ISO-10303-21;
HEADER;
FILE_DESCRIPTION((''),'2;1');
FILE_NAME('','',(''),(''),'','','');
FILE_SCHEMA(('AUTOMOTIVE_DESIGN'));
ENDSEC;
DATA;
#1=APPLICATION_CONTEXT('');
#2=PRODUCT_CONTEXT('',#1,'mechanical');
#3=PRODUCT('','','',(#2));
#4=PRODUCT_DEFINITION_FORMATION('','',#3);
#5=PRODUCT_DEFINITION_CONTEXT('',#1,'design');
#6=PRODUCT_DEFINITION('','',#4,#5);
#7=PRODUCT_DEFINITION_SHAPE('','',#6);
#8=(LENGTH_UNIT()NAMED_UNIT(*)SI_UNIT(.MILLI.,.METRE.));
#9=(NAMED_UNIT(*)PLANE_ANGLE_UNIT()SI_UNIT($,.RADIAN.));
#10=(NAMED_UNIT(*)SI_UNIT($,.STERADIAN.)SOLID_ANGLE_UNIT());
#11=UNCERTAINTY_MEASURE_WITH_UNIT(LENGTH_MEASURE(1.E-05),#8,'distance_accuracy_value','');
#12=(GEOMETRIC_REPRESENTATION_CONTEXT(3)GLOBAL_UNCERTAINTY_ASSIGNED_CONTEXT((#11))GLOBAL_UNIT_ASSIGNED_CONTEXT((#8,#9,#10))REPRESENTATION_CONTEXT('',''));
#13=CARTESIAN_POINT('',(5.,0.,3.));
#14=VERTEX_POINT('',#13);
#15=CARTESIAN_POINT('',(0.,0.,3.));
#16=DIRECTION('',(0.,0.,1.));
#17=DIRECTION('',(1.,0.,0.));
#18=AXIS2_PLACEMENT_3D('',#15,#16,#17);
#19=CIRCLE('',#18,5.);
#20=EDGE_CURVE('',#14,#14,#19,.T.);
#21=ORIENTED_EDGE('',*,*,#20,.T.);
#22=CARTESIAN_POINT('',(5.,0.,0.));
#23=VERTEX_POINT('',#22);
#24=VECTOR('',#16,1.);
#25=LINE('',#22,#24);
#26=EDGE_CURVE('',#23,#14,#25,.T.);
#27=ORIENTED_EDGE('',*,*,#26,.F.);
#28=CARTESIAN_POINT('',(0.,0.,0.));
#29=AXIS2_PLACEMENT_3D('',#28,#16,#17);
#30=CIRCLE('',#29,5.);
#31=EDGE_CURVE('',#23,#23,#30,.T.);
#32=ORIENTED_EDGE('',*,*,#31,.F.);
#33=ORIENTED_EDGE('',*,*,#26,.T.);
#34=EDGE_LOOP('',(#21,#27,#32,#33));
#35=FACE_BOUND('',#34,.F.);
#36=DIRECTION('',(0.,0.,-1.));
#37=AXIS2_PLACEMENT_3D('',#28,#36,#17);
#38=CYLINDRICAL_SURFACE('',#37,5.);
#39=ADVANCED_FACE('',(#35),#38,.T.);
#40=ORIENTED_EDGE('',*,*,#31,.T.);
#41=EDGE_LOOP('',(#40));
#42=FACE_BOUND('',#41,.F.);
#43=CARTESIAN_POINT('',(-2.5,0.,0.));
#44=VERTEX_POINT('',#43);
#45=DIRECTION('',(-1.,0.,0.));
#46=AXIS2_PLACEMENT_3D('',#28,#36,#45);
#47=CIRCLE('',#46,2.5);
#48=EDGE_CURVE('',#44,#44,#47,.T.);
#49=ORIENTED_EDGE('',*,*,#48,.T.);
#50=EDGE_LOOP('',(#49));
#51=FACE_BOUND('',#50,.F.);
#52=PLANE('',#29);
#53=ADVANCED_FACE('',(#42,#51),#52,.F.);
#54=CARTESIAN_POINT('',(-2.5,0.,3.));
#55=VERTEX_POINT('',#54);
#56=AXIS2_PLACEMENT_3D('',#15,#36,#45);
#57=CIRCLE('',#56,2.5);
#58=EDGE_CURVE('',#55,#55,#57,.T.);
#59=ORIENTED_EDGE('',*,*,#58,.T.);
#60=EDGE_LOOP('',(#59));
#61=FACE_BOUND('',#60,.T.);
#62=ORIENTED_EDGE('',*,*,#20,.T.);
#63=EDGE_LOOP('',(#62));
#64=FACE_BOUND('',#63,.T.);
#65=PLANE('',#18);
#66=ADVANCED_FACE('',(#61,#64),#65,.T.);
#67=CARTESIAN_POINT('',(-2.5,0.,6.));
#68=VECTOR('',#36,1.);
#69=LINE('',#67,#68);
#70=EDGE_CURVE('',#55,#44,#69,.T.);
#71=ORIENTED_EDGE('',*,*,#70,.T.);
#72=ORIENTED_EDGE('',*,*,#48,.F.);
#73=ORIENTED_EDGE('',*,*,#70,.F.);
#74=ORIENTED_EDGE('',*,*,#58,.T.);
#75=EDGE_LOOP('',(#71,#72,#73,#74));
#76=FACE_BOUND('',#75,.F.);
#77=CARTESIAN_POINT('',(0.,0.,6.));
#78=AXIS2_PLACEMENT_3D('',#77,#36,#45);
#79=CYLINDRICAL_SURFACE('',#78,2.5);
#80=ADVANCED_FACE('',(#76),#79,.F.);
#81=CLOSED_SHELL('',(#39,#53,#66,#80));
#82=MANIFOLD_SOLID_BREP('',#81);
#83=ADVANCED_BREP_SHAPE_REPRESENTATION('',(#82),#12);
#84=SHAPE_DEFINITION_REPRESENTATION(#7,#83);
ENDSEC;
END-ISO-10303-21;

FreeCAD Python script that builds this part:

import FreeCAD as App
import Part
import Sketcher
Q = App.Units.Quantity

doc = App.newDocument("Part")
body = doc.addObject("PartDesign::Body", "Body")

# Sketch on XY plane
sketch1 = doc.addObject("Sketcher::SketchObject", "Sketch")
body.addObject(sketch1)
sketch1.AttachmentSupport = (doc.XY_Plane, [""])
sketch1.MapMode = "FlatFace"
sketch1.addGeometry(Part.Circle(App.Vector(0, 0, 0), App.Vector(0, 0, 1), 5), False)
sketch1.addConstraint([
    Sketcher.Constraint("Coincident", 0, 3, -1, 1),
    Sketcher.Constraint("Diameter", 0, Q("10 mm")),
])
pad1 = doc.addObject("PartDesign::Pad", "Pad")
body.addObject(pad1)
pad1.Profile = sketch1
pad1.Length = 3

# Sketch on XY plane
sketch2 = doc.addObject("Sketcher::SketchObject", "Sketch001")
body.addObject(sketch2)
sketch2.AttachmentSupport = (doc.XY_Plane, [""])
sketch2.MapMode = "FlatFace"
sketch2.AttachmentOffset = App.Placement(App.Vector(0, 0, 3), App.Rotation())
sketch2.addGeometry(Part.Circle(App.Vector(0, 0, 0), App.Vector(0, 0, 1), 2.5), False)
sketch2.addConstraint([
    Sketcher.Constraint("Coincident", 0, 3, -1, 1),
    Sketcher.Constraint("Diameter", 0, Q("5 mm")),
])
doc.recompute()
hole = doc.addObject("PartDesign::Hole", "Hole")
body.addObject(hole)
hole.Profile = sketch2
hole.ThreadType = "None"
hole.Diameter = 5
hole.DepthType = "Dimension"
hole.Depth = 3
hole.DrillPoint = "Flat"

doc.recompute()
